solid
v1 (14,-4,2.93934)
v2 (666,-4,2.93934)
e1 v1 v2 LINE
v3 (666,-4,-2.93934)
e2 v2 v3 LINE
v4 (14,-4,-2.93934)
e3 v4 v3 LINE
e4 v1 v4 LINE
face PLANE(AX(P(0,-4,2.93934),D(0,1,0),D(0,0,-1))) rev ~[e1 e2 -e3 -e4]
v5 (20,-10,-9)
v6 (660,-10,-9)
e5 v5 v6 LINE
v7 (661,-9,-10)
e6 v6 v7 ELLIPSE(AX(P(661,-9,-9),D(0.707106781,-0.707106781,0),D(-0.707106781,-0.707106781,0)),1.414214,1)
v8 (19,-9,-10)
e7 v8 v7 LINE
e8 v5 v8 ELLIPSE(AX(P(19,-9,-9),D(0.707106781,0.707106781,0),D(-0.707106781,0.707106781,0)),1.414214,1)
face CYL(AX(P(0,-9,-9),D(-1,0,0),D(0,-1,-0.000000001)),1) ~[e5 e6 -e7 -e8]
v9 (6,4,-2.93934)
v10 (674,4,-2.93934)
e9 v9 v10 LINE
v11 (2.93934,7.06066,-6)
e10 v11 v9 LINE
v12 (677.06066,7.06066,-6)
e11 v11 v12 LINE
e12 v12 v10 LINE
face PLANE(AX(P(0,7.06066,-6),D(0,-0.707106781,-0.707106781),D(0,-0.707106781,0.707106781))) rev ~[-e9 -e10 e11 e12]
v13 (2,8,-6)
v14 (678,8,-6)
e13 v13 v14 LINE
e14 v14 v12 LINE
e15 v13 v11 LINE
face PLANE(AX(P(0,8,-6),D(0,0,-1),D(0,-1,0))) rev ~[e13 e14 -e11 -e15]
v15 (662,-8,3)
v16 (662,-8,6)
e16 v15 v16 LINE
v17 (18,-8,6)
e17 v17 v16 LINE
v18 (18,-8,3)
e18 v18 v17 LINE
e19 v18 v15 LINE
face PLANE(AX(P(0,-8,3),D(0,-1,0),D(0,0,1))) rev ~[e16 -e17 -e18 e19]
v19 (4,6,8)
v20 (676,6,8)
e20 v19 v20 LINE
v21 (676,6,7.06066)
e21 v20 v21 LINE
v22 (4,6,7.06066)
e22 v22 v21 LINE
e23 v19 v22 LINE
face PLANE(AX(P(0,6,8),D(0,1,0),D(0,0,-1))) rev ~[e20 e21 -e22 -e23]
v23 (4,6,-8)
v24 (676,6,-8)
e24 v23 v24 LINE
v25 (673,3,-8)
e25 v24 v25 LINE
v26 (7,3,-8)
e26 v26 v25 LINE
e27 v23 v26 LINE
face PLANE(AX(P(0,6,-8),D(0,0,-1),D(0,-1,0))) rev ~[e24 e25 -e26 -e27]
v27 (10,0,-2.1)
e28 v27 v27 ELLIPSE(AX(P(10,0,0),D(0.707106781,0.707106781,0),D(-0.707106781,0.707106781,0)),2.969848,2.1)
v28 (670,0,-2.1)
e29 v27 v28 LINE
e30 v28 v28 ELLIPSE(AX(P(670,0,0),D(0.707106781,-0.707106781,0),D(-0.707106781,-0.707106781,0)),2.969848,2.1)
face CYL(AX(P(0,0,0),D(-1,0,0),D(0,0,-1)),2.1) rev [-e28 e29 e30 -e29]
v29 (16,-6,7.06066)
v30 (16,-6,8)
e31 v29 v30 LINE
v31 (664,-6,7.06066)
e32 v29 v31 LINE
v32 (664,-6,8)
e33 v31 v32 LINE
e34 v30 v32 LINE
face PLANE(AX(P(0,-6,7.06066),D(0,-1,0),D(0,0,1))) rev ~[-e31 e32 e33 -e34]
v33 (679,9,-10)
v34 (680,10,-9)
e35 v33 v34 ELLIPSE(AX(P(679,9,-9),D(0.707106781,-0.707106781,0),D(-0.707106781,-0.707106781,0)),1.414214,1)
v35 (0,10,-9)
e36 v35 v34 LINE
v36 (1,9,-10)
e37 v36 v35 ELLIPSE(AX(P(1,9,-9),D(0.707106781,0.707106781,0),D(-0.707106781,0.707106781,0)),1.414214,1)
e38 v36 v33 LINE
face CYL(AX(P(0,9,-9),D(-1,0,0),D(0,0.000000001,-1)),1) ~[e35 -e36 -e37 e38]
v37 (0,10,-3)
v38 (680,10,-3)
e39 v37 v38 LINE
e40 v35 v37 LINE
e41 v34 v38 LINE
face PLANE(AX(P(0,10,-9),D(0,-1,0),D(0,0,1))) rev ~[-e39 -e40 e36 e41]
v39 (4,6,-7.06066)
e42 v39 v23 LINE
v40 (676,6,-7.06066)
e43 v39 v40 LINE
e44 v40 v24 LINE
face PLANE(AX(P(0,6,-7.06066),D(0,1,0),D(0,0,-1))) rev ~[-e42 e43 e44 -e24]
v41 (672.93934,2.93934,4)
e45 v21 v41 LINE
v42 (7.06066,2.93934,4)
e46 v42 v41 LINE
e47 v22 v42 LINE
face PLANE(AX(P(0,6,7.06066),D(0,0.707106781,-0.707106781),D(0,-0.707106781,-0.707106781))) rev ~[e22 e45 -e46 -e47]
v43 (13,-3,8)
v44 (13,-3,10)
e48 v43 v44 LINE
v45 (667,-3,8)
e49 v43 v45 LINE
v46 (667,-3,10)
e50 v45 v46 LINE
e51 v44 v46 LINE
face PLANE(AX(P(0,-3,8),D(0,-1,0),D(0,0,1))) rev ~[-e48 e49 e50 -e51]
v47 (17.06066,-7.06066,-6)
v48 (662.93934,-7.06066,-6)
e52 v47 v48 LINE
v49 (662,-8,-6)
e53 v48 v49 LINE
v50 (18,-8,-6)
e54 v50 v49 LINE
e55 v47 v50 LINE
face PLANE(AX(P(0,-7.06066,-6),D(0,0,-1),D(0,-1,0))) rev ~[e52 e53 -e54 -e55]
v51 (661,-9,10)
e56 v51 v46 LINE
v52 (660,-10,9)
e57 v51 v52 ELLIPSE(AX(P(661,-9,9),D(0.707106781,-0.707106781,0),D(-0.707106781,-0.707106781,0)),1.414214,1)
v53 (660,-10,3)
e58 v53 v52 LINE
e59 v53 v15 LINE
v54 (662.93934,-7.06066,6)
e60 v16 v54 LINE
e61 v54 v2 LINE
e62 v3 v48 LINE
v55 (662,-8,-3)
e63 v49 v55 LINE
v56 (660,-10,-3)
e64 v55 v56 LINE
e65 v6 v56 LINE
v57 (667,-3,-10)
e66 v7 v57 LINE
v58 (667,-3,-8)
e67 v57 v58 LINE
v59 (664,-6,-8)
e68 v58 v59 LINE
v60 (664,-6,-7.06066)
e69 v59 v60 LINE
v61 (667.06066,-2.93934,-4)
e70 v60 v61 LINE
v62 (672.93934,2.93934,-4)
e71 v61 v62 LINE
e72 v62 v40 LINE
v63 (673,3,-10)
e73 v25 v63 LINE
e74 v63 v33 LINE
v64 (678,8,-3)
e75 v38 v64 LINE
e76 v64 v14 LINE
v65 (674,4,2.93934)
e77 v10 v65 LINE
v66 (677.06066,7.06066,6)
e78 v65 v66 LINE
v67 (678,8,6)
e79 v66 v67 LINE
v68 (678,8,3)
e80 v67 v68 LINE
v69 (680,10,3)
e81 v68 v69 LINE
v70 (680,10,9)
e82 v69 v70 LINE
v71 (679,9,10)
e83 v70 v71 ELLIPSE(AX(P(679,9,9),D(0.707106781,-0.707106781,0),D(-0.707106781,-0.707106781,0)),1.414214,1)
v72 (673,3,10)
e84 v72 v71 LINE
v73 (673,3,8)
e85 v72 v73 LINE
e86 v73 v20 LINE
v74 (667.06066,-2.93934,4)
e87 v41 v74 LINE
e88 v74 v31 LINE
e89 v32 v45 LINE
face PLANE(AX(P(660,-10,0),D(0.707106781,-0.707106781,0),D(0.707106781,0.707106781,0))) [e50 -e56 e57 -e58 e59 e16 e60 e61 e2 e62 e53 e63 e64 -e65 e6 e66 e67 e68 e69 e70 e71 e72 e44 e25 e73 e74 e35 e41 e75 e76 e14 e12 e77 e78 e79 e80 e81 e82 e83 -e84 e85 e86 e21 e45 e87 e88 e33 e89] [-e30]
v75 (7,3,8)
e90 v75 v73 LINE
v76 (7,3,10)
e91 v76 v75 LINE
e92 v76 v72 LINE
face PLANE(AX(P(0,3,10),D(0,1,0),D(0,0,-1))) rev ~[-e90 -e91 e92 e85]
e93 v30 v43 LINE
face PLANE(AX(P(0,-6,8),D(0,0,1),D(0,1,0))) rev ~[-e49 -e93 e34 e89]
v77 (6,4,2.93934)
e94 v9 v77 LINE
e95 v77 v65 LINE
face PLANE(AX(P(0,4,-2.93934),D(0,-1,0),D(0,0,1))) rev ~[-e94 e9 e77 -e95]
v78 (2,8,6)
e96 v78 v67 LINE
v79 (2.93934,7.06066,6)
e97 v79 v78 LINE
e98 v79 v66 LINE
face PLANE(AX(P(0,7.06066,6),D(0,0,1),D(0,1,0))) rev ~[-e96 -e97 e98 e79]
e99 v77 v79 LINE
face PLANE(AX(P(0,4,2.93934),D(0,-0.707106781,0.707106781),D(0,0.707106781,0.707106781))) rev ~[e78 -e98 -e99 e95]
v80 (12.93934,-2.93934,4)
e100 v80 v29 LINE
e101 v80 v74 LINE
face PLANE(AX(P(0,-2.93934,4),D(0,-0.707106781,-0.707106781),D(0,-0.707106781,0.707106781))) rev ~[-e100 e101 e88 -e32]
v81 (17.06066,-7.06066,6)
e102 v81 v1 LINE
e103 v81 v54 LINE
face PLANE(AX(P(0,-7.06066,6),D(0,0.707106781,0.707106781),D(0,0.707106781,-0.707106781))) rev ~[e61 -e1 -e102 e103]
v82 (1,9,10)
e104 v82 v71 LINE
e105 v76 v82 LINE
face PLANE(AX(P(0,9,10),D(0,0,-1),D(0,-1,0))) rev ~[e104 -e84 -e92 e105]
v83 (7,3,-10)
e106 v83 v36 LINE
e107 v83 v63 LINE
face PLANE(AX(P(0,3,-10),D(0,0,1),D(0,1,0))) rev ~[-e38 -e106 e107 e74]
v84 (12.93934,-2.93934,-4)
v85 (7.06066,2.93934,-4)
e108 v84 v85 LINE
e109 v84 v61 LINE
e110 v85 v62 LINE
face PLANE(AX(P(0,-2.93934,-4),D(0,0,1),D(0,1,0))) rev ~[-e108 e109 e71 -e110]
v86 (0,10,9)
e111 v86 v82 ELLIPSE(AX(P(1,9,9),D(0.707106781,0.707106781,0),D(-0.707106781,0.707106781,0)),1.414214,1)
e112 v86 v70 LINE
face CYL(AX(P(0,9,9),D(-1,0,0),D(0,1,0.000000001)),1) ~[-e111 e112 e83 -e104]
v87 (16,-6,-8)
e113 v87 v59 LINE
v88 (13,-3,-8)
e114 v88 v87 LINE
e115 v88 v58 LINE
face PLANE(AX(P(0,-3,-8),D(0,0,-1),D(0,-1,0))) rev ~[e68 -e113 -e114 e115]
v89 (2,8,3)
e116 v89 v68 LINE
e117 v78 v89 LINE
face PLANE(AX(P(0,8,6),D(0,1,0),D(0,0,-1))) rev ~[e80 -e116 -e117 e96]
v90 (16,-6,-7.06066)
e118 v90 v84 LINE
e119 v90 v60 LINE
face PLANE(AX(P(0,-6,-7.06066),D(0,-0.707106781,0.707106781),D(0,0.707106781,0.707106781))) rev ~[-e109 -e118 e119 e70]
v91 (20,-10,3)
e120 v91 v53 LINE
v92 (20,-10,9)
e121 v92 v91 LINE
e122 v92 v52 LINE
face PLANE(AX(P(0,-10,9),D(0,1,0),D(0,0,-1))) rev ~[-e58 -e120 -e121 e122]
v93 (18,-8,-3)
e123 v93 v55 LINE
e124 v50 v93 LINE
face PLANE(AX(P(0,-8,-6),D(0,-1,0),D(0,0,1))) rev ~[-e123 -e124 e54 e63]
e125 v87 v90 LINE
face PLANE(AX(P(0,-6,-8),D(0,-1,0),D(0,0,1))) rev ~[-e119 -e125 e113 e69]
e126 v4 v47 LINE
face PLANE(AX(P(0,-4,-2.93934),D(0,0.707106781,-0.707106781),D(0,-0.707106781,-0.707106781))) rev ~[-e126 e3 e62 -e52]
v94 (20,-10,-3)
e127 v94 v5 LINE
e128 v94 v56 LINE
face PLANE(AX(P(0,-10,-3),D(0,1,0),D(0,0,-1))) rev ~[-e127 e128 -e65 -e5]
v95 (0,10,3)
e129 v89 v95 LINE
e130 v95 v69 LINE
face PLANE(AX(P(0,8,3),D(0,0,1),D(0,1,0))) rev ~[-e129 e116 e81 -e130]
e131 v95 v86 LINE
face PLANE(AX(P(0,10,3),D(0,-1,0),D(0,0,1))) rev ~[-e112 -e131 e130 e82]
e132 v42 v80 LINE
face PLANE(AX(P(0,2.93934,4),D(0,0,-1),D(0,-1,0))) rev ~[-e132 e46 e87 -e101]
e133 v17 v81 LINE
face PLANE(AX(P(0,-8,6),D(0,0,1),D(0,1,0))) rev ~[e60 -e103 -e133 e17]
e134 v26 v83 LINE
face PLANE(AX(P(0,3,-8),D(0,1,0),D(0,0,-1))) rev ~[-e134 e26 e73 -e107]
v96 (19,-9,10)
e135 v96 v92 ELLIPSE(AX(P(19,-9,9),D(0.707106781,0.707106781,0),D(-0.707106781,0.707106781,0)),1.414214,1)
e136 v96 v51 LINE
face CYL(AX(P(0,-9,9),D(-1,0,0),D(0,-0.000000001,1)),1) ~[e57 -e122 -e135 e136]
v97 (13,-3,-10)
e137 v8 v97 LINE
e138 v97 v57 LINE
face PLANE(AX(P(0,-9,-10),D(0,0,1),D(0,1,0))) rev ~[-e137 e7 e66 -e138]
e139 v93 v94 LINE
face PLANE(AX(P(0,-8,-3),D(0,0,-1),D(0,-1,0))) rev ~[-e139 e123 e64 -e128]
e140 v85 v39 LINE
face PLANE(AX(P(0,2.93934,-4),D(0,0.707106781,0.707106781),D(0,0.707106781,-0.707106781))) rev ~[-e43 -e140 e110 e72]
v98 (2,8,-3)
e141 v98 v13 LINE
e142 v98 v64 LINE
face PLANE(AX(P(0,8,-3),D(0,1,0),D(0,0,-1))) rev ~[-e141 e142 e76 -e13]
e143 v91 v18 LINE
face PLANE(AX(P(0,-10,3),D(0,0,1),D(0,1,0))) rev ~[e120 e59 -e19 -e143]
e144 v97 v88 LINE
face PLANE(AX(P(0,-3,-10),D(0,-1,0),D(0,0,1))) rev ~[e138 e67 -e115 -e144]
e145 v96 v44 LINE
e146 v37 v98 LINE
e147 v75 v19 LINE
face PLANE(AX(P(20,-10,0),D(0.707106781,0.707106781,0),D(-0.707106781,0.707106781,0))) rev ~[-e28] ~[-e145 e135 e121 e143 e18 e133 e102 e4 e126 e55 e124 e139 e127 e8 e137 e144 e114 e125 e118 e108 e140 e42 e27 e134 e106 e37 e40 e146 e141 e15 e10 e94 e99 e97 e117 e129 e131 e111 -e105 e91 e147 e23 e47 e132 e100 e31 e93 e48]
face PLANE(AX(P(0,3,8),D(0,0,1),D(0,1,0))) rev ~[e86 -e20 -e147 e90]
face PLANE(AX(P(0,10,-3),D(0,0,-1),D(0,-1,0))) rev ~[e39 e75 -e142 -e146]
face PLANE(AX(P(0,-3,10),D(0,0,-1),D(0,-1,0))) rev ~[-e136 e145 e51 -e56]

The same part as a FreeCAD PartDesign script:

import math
import FreeCAD as App
import Part
import Sketcher

V = App.Vector
Q = App.Units.Quantity


def add_polygon(sketch, points):
    """Adds a closed chain of lines whose ends are joined by coincident constraints."""
    first, n = sketch.GeometryCount, len(points)
    for a, b in zip(points, points[1:] + points[:1]):
        sketch.addGeometry(Part.LineSegment(App.Vector(*a, 0), App.Vector(*b, 0)), False)
    for i in range(n):
        sketch.addConstraint(Sketcher.Constraint("Coincident", first + i, 2, first + (i + 1) % n, 1))

doc = App.newDocument("Part")
params = doc.addObject("Spreadsheet::Sheet", "Params")
for row, (alias, value) in enumerate([
    ("sketch1_radius", "1 mm"),
    ("sketch1_diameter", "4.2 mm"),
    ("sketch1_width", "6 mm"),
    ("sketch1_width2", "3 mm"),
    ("sketch1_width3", "2 mm"),
    ("pad1_length", "680 mm"),
    ("sketch2_width", "20 mm"),
    ("pocket1_length", "20 mm"),
    ("sketch3_width", "20 mm"),
    ("pocket2_length", "20 mm"),
], start=1):
    params.set(f"A{row}", alias)
    params.set(f"B{row}", "=" + value)
    params.setAlias(f"B{row}", alias)

body = doc.addObject("PartDesign::Body", "Body")

# Sketch on YZ plane
sketch1 = body.newObject("Sketcher::SketchObject", "Sketch")
sketch1.AttachmentSupport = (doc.getObject("YZ_Plane"), [""])
sketch1.MapMode = "FlatFace"
sketch1.addGeometry([
    Part.LineSegment(V(9, 10, 0), V(3, 10, 0)),  # 0
    Part.LineSegment(V(3, 10, 0), V(3, 8, 0)),  # 1
    Part.LineSegment(V(3, 8, 0), V(6, 8, 0)),  # 2
    Part.LineSegment(V(6, 8, 0), V(6, 7.06066, 0)),  # 3
    Part.LineSegment(V(6, 7.06066, 0), V(2.93934, 4, 0)),  # 4
    Part.LineSegment(V(2.93934, 4, 0), V(-2.93934, 4, 0)),  # 5
    Part.LineSegment(V(-2.93934, 4, 0), V(-6, 7.06066, 0)),  # 6
    Part.LineSegment(V(-6, 7.06066, 0), V(-6, 8, 0)),  # 7
    Part.LineSegment(V(-6, 8, 0), V(-3, 8, 0)),  # 8
    Part.LineSegment(V(-3, 8, 0), V(-3, 10, 0)),  # 9
    Part.LineSegment(V(-3, 10, 0), V(-9, 10, 0)),  # 10
    Part.ArcOfCircle(Part.Circle(V(-9, 9, 0), V(0, 0, 1), 1), math.radians(90), math.radians(180)),  # 11
    Part.LineSegment(V(-10, 9, 0), V(-10, 3, 0)),  # 12
    Part.LineSegment(V(-10, 3, 0), V(-8, 3, 0)),  # 13
    Part.LineSegment(V(-8, 3, 0), V(-8, 6, 0)),  # 14
    Part.LineSegment(V(-8, 6, 0), V(-7.06066, 6, 0)),  # 15
    Part.LineSegment(V(-7.06066, 6, 0), V(-4, 2.93934, 0)),  # 16
    Part.LineSegment(V(-4, 2.93934, 0), V(-4, -2.93934, 0)),  # 17
    Part.LineSegment(V(-4, -2.93934, 0), V(-7.06066, -6, 0)),  # 18
    Part.LineSegment(V(-7.06066, -6, 0), V(-8, -6, 0)),  # 19
    Part.LineSegment(V(-8, -6, 0), V(-8, -3, 0)),  # 20
    Part.LineSegment(V(-8, -3, 0), V(-10, -3, 0)),  # 21
    Part.LineSegment(V(-10, -3, 0), V(-10, -9, 0)),  # 22
    Part.ArcOfCircle(Part.Circle(V(-9, -9, 0), V(0, 0, 1), 1), math.radians(-180), math.radians(-90)),  # 23
    Part.LineSegment(V(-9, -10, 0), V(-3, -10, 0)),  # 24
    Part.LineSegment(V(-3, -10, 0), V(-3, -8, 0)),  # 25
    Part.LineSegment(V(-3, -8, 0), V(-6, -8, 0)),  # 26
    Part.LineSegment(V(-6, -8, 0), V(-6, -7.06066, 0)),  # 27
    Part.LineSegment(V(-6, -7.06066, 0), V(-2.93934, -4, 0)),  # 28
    Part.LineSegment(V(-2.93934, -4, 0), V(2.93934, -4, 0)),  # 29
    Part.LineSegment(V(2.93934, -4, 0), V(6, -7.06066, 0)),  # 30
    Part.LineSegment(V(6, -7.06066, 0), V(6, -8, 0)),  # 31
    Part.LineSegment(V(6, -8, 0), V(3, -8, 0)),  # 32
    Part.LineSegment(V(3, -8, 0), V(3, -10, 0)),  # 33
    Part.LineSegment(V(3, -10, 0), V(9, -10, 0)),  # 34
    Part.ArcOfCircle(Part.Circle(V(9, -9, 0), V(0, 0, 1), 1), math.radians(-90), math.radians(0)),  # 35
    Part.LineSegment(V(10, -9, 0), V(10, -3, 0)),  # 36
    Part.LineSegment(V(10, -3, 0), V(8, -3, 0)),  # 37
    Part.LineSegment(V(8, -3, 0), V(8, -6, 0)),  # 38
    Part.LineSegment(V(8, -6, 0), V(7.06066, -6, 0)),  # 39
    Part.LineSegment(V(7.06066, -6, 0), V(4, -2.93934, 0)),  # 40
    Part.LineSegment(V(4, -2.93934, 0), V(4, 2.93934, 0)),  # 41
    Part.LineSegment(V(4, 2.93934, 0), V(7.06066, 6, 0)),  # 42
    Part.LineSegment(V(7.06066, 6, 0), V(8, 6, 0)),  # 43
    Part.LineSegment(V(8, 6, 0), V(8, 3, 0)),  # 44
    Part.LineSegment(V(8, 3, 0), V(10, 3, 0)),  # 45
    Part.LineSegment(V(10, 3, 0), V(10, 9, 0)),  # 46
    Part.ArcOfCircle(Part.Circle(V(9, 9, 0), V(0, 0, 1), 1), math.radians(0), math.radians(90)),  # 47
    Part.Circle(V(0, 0, 0), V(0, 0, 1), 2.1),  # 48
], False)
sketch1.addConstraint([
    Sketcher.Constraint("Coincident", 0, 2, 1, 1),
    Sketcher.Constraint("Coincident", 1, 2, 2, 1),
    Sketcher.Constraint("Coincident", 2, 2, 3, 1),
    Sketcher.Constraint("Coincident", 3, 2, 4, 1),
    Sketcher.Constraint("Coincident", 4, 2, 5, 1),
    Sketcher.Constraint("Coincident", 5, 2, 6, 1),
    Sketcher.Constraint("Coincident", 6, 2, 7, 1),
    Sketcher.Constraint("Coincident", 7, 2, 8, 1),
    Sketcher.Constraint("Coincident", 8, 2, 9, 1),
    Sketcher.Constraint("Coincident", 9, 2, 10, 1),
    Sketcher.Constraint("Tangent", 10, 2, 11, 1),
    Sketcher.Constraint("Tangent", 11, 2, 12, 1),
    Sketcher.Constraint("Coincident", 12, 2, 13, 1),
    Sketcher.Constraint("Coincident", 13, 2, 14, 1),
    Sketcher.Constraint("Coincident", 14, 2, 15, 1),
    Sketcher.Constraint("Coincident", 15, 2, 16, 1),
    Sketcher.Constraint("Coincident", 16, 2, 17, 1),
    Sketcher.Constraint("Coincident", 17, 2, 18, 1),
    Sketcher.Constraint("Coincident", 18, 2, 19, 1),
    Sketcher.Constraint("Coincident", 19, 2, 20, 1),
    Sketcher.Constraint("Coincident", 20, 2, 21, 1),
    Sketcher.Constraint("Coincident", 21, 2, 22, 1),
    Sketcher.Constraint("Tangent", 22, 2, 23, 1),
    Sketcher.Constraint("Tangent", 23, 2, 24, 1),
    Sketcher.Constraint("Coincident", 24, 2, 25, 1),
    Sketcher.Constraint("Coincident", 25, 2, 26, 1),
    Sketcher.Constraint("Coincident", 26, 2, 27, 1),
    Sketcher.Constraint("Coincident", 27, 2, 28, 1),
    Sketcher.Constraint("Coincident", 28, 2, 29, 1),
    Sketcher.Constraint("Coincident", 29, 2, 30, 1),
    Sketcher.Constraint("Coincident", 30, 2, 31, 1),
    Sketcher.Constraint("Coincident", 31, 2, 32, 1),
    Sketcher.Constraint("Coincident", 32, 2, 33, 1),
    Sketcher.Constraint("Coincident", 33, 2, 34, 1),
    Sketcher.Constraint("Tangent", 34, 2, 35, 1),
    Sketcher.Constraint("Tangent", 35, 2, 36, 1),
    Sketcher.Constraint("Coincident", 36, 2, 37, 1),
    Sketcher.Constraint("Coincident", 37, 2, 38, 1),
    Sketcher.Constraint("Coincident", 38, 2, 39, 1),
    Sketcher.Constraint("Coincident", 39, 2, 40, 1),
    Sketcher.Constraint("Coincident", 40, 2, 41, 1),
    Sketcher.Constraint("Coincident", 41, 2, 42, 1),
    Sketcher.Constraint("Coincident", 42, 2, 43, 1),
    Sketcher.Constraint("Coincident", 43, 2, 44, 1),
    Sketcher.Constraint("Coincident", 44, 2, 45, 1),
    Sketcher.Constraint("Coincident", 45, 2, 46, 1),
    Sketcher.Constraint("Tangent", 46, 2, 47, 1),
    Sketcher.Constraint("Tangent", 47, 2, 0, 1),
    Sketcher.Constraint("Horizontal", 0),
    Sketcher.Constraint("Vertical", 1),
    Sketcher.Constraint("Horizontal", 2),
    Sketcher.Constraint("Vertical", 3),
    Sketcher.Constraint("Horizontal", 5),
    Sketcher.Constraint("Vertical", 7),
    Sketcher.Constraint("Horizontal", 8),
    Sketcher.Constraint("Vertical", 9),
    Sketcher.Constraint("Horizontal", 10),
    Sketcher.Constraint("Vertical", 12),
    Sketcher.Constraint("Horizontal", 13),
    Sketcher.Constraint("Vertical", 14),
    Sketcher.Constraint("Horizontal", 15),
    Sketcher.Constraint("Vertical", 17),
    Sketcher.Constraint("Horizontal", 19),
    Sketcher.Constraint("Vertical", 20),
    Sketcher.Constraint("Horizontal", 21),
    Sketcher.Constraint("Vertical", 22),
    Sketcher.Constraint("Horizontal", 24),
    Sketcher.Constraint("Vertical", 25),
    Sketcher.Constraint("Horizontal", 26),
    Sketcher.Constraint("Vertical", 27),
    Sketcher.Constraint("Horizontal", 29),
    Sketcher.Constraint("Vertical", 31),
    Sketcher.Constraint("Horizontal", 32),
    Sketcher.Constraint("Vertical", 33),
    Sketcher.Constraint("Horizontal", 34),
    Sketcher.Constraint("Vertical", 36),
    Sketcher.Constraint("Horizontal", 37),
    Sketcher.Constraint("Vertical", 38),
    Sketcher.Constraint("Horizontal", 39),
    Sketcher.Constraint("Vertical", 41),
    Sketcher.Constraint("Horizontal", 43),
    Sketcher.Constraint("Vertical", 44),
    Sketcher.Constraint("Horizontal", 45),
    Sketcher.Constraint("Vertical", 46),
    Sketcher.Constraint("Coincident", 48, 3, -1, 1),
    Sketcher.Constraint("Equal", 11, 23),
    Sketcher.Constraint("Equal", 23, 35),
    Sketcher.Constraint("Equal", 35, 47),
    Sketcher.Constraint("Symmetric", 11, 3, 35, 3, -1, 1),
    Sketcher.Constraint("Symmetric", 23, 3, 47, 3, -1, 1),
    Sketcher.Constraint("Symmetric", 1, 2, 25, 2, -1, 1),
    Sketcher.Constraint("Symmetric", 3, 2, 27, 2, -1, 1),
    Sketcher.Constraint("Symmetric", 4, 2, 28, 2, -1, 1),
    Sketcher.Constraint("Symmetric", 6, 2, 30, 2, -1, 1),
    Sketcher.Constraint("Symmetric", 8, 2, 32, 2, -1, 1),
    Sketcher.Constraint("Symmetric", 13, 2, 37, 2, -1, 1),
    Sketcher.Constraint("Symmetric", 15, 2, 39, 2, -1, 1),
    Sketcher.Constraint("Symmetric", 16, 2, 40, 2, -1, 1),
    Sketcher.Constraint("Symmetric", 18, 2, 42, 2, -1, 1),
    Sketcher.Constraint("Symmetric", 20, 2, 44, 2, -1, 1),
    Sketcher.Constraint("Symmetric", 23, 3, 35, 3, -2),
    Sketcher.Constraint("Symmetric", 3, 2, 6, 2, -2),
    Sketcher.Constraint("Symmetric", 1, 2, 8, 2, -2),
    Sketcher.Constraint("Symmetric", 20, 2, 37, 2, -2),
    Sketcher.Constraint("Symmetric", 18, 2, 39, 2, -2),
    Sketcher.Constraint("Perpendicular", 4, 6),
    Sketcher.Constraint("Parallel", 6, 16),
    Sketcher.Constraint("Perpendicular", 16, 18),
    Sketcher.Constraint("Perpendicular", 28, 30),
    Sketcher.Constraint("Perpendicular", 40, 42),
    Sketcher.Constraint("Horizontal", 17, 2, 40, 2),
    Sketcher.Constraint("Equal", 45, 1),
    Sketcher.Constraint("Equal", 43, 3),
    Sketcher.Constraint("Equal", 34, 12),
    Sketcher.Constraint("Equal", 32, 14),
    Sketcher.Constraint("Equal", 29, 17),
    Sketcher.Constraint("Equal", 6, 16),
    Sketcher.Constraint("Radius", 11, Q("1 mm")),
    Sketcher.Constraint("Diameter", 48, Q("4.2 mm")),
    Sketcher.Constraint("DistanceX", 0, 2, 0, 1, Q("6 mm")),
    Sketcher.Constraint("DistanceX", 2, 1, 2, 2, Q("3 mm")),
    Sketcher.Constraint("DistanceX", 13, 1, 13, 2, Q("2 mm")),
    Sketcher.Constraint("DistanceX", 11, 3, -1, 1, Q("9 mm")),
    Sketcher.Constraint("DistanceY", -1, 1, 4, 2, Q("4 mm")),
    Sketcher.Constraint("DistanceX", 5, 2, 5, 1, Q("5.87868 mm")),
])
sketch1.setExpression("Constraints[117]", "Params.sketch1_radius")
sketch1.setExpression("Constraints[118]", "Params.sketch1_diameter")
sketch1.setExpression("Constraints[119]", "Params.sketch1_width")
sketch1.setExpression("Constraints[120]", "Params.sketch1_width2")
sketch1.setExpression("Constraints[121]", "Params.sketch1_width3")
pad1 = body.newObject("PartDesign::Pad", "Pad")
pad1.Profile = sketch1
pad1.setExpression("Length", "Params.pad1_length")

# Sketch on XY plane
sketch2 = body.newObject("Sketcher::SketchObject", "Sketch001")
sketch2.AttachmentSupport = (doc.getObject("XY_Plane"), [""])
sketch2.MapMode = "FlatFace"
add_polygon(sketch2, [(0, 10), (0, -10), (20, -10)])  # lines 0-2
sketch2.addConstraint([
    Sketcher.Constraint("Vertical", 0),
    Sketcher.Constraint("Horizontal", 1),
    Sketcher.Constraint("Symmetric", 0, 2, 2, 2, -1, 1),
    Sketcher.Constraint("Equal", 1, 0),
    Sketcher.Constraint("DistanceX", 1, 1, 1, 2, Q("20 mm")),
])
sketch2.setExpression("Constraints[7]", "Params.sketch2_width")
pocket1 = body.newObject("PartDesign::Pocket", "Pocket")
pocket1.Profile = sketch2
pocket1.setExpression("Length", "Params.pocket1_length")
pocket1.Midplane = True

# Sketch on XY plane
sketch3 = body.newObject("Sketcher::SketchObject", "Sketch002")
sketch3.AttachmentSupport = (doc.getObject("XY_Plane"), [""])
sketch3.MapMode = "FlatFace"
add_polygon(sketch3, [(680, -10), (680, 10), (660, -10)])  # lines 0-2
sketch3.addConstraint([
    Sketcher.Constraint("Vertical", 0),
    Sketcher.Constraint("Horizontal", 2),
    Sketcher.Constraint("Equal", 2, 0),
    Sketcher.Constraint("DistanceX", 2, 1, 2, 2, Q("20 mm")),
    Sketcher.Constraint("DistanceX", -1, 1, 0, 2, Q("680 mm")),
    Sketcher.Constraint("DistanceY", -1, 1, 0, 2, Q("10 mm")),
])
sketch3.setExpression("Constraints[6]", "Params.sketch3_width")
pocket2 = body.newObject("PartDesign::Pocket", "Pocket001")
pocket2.Profile = sketch3
pocket2.setExpression("Length", "Params.pocket2_length")
pocket2.Midplane = True

doc.recompute()
